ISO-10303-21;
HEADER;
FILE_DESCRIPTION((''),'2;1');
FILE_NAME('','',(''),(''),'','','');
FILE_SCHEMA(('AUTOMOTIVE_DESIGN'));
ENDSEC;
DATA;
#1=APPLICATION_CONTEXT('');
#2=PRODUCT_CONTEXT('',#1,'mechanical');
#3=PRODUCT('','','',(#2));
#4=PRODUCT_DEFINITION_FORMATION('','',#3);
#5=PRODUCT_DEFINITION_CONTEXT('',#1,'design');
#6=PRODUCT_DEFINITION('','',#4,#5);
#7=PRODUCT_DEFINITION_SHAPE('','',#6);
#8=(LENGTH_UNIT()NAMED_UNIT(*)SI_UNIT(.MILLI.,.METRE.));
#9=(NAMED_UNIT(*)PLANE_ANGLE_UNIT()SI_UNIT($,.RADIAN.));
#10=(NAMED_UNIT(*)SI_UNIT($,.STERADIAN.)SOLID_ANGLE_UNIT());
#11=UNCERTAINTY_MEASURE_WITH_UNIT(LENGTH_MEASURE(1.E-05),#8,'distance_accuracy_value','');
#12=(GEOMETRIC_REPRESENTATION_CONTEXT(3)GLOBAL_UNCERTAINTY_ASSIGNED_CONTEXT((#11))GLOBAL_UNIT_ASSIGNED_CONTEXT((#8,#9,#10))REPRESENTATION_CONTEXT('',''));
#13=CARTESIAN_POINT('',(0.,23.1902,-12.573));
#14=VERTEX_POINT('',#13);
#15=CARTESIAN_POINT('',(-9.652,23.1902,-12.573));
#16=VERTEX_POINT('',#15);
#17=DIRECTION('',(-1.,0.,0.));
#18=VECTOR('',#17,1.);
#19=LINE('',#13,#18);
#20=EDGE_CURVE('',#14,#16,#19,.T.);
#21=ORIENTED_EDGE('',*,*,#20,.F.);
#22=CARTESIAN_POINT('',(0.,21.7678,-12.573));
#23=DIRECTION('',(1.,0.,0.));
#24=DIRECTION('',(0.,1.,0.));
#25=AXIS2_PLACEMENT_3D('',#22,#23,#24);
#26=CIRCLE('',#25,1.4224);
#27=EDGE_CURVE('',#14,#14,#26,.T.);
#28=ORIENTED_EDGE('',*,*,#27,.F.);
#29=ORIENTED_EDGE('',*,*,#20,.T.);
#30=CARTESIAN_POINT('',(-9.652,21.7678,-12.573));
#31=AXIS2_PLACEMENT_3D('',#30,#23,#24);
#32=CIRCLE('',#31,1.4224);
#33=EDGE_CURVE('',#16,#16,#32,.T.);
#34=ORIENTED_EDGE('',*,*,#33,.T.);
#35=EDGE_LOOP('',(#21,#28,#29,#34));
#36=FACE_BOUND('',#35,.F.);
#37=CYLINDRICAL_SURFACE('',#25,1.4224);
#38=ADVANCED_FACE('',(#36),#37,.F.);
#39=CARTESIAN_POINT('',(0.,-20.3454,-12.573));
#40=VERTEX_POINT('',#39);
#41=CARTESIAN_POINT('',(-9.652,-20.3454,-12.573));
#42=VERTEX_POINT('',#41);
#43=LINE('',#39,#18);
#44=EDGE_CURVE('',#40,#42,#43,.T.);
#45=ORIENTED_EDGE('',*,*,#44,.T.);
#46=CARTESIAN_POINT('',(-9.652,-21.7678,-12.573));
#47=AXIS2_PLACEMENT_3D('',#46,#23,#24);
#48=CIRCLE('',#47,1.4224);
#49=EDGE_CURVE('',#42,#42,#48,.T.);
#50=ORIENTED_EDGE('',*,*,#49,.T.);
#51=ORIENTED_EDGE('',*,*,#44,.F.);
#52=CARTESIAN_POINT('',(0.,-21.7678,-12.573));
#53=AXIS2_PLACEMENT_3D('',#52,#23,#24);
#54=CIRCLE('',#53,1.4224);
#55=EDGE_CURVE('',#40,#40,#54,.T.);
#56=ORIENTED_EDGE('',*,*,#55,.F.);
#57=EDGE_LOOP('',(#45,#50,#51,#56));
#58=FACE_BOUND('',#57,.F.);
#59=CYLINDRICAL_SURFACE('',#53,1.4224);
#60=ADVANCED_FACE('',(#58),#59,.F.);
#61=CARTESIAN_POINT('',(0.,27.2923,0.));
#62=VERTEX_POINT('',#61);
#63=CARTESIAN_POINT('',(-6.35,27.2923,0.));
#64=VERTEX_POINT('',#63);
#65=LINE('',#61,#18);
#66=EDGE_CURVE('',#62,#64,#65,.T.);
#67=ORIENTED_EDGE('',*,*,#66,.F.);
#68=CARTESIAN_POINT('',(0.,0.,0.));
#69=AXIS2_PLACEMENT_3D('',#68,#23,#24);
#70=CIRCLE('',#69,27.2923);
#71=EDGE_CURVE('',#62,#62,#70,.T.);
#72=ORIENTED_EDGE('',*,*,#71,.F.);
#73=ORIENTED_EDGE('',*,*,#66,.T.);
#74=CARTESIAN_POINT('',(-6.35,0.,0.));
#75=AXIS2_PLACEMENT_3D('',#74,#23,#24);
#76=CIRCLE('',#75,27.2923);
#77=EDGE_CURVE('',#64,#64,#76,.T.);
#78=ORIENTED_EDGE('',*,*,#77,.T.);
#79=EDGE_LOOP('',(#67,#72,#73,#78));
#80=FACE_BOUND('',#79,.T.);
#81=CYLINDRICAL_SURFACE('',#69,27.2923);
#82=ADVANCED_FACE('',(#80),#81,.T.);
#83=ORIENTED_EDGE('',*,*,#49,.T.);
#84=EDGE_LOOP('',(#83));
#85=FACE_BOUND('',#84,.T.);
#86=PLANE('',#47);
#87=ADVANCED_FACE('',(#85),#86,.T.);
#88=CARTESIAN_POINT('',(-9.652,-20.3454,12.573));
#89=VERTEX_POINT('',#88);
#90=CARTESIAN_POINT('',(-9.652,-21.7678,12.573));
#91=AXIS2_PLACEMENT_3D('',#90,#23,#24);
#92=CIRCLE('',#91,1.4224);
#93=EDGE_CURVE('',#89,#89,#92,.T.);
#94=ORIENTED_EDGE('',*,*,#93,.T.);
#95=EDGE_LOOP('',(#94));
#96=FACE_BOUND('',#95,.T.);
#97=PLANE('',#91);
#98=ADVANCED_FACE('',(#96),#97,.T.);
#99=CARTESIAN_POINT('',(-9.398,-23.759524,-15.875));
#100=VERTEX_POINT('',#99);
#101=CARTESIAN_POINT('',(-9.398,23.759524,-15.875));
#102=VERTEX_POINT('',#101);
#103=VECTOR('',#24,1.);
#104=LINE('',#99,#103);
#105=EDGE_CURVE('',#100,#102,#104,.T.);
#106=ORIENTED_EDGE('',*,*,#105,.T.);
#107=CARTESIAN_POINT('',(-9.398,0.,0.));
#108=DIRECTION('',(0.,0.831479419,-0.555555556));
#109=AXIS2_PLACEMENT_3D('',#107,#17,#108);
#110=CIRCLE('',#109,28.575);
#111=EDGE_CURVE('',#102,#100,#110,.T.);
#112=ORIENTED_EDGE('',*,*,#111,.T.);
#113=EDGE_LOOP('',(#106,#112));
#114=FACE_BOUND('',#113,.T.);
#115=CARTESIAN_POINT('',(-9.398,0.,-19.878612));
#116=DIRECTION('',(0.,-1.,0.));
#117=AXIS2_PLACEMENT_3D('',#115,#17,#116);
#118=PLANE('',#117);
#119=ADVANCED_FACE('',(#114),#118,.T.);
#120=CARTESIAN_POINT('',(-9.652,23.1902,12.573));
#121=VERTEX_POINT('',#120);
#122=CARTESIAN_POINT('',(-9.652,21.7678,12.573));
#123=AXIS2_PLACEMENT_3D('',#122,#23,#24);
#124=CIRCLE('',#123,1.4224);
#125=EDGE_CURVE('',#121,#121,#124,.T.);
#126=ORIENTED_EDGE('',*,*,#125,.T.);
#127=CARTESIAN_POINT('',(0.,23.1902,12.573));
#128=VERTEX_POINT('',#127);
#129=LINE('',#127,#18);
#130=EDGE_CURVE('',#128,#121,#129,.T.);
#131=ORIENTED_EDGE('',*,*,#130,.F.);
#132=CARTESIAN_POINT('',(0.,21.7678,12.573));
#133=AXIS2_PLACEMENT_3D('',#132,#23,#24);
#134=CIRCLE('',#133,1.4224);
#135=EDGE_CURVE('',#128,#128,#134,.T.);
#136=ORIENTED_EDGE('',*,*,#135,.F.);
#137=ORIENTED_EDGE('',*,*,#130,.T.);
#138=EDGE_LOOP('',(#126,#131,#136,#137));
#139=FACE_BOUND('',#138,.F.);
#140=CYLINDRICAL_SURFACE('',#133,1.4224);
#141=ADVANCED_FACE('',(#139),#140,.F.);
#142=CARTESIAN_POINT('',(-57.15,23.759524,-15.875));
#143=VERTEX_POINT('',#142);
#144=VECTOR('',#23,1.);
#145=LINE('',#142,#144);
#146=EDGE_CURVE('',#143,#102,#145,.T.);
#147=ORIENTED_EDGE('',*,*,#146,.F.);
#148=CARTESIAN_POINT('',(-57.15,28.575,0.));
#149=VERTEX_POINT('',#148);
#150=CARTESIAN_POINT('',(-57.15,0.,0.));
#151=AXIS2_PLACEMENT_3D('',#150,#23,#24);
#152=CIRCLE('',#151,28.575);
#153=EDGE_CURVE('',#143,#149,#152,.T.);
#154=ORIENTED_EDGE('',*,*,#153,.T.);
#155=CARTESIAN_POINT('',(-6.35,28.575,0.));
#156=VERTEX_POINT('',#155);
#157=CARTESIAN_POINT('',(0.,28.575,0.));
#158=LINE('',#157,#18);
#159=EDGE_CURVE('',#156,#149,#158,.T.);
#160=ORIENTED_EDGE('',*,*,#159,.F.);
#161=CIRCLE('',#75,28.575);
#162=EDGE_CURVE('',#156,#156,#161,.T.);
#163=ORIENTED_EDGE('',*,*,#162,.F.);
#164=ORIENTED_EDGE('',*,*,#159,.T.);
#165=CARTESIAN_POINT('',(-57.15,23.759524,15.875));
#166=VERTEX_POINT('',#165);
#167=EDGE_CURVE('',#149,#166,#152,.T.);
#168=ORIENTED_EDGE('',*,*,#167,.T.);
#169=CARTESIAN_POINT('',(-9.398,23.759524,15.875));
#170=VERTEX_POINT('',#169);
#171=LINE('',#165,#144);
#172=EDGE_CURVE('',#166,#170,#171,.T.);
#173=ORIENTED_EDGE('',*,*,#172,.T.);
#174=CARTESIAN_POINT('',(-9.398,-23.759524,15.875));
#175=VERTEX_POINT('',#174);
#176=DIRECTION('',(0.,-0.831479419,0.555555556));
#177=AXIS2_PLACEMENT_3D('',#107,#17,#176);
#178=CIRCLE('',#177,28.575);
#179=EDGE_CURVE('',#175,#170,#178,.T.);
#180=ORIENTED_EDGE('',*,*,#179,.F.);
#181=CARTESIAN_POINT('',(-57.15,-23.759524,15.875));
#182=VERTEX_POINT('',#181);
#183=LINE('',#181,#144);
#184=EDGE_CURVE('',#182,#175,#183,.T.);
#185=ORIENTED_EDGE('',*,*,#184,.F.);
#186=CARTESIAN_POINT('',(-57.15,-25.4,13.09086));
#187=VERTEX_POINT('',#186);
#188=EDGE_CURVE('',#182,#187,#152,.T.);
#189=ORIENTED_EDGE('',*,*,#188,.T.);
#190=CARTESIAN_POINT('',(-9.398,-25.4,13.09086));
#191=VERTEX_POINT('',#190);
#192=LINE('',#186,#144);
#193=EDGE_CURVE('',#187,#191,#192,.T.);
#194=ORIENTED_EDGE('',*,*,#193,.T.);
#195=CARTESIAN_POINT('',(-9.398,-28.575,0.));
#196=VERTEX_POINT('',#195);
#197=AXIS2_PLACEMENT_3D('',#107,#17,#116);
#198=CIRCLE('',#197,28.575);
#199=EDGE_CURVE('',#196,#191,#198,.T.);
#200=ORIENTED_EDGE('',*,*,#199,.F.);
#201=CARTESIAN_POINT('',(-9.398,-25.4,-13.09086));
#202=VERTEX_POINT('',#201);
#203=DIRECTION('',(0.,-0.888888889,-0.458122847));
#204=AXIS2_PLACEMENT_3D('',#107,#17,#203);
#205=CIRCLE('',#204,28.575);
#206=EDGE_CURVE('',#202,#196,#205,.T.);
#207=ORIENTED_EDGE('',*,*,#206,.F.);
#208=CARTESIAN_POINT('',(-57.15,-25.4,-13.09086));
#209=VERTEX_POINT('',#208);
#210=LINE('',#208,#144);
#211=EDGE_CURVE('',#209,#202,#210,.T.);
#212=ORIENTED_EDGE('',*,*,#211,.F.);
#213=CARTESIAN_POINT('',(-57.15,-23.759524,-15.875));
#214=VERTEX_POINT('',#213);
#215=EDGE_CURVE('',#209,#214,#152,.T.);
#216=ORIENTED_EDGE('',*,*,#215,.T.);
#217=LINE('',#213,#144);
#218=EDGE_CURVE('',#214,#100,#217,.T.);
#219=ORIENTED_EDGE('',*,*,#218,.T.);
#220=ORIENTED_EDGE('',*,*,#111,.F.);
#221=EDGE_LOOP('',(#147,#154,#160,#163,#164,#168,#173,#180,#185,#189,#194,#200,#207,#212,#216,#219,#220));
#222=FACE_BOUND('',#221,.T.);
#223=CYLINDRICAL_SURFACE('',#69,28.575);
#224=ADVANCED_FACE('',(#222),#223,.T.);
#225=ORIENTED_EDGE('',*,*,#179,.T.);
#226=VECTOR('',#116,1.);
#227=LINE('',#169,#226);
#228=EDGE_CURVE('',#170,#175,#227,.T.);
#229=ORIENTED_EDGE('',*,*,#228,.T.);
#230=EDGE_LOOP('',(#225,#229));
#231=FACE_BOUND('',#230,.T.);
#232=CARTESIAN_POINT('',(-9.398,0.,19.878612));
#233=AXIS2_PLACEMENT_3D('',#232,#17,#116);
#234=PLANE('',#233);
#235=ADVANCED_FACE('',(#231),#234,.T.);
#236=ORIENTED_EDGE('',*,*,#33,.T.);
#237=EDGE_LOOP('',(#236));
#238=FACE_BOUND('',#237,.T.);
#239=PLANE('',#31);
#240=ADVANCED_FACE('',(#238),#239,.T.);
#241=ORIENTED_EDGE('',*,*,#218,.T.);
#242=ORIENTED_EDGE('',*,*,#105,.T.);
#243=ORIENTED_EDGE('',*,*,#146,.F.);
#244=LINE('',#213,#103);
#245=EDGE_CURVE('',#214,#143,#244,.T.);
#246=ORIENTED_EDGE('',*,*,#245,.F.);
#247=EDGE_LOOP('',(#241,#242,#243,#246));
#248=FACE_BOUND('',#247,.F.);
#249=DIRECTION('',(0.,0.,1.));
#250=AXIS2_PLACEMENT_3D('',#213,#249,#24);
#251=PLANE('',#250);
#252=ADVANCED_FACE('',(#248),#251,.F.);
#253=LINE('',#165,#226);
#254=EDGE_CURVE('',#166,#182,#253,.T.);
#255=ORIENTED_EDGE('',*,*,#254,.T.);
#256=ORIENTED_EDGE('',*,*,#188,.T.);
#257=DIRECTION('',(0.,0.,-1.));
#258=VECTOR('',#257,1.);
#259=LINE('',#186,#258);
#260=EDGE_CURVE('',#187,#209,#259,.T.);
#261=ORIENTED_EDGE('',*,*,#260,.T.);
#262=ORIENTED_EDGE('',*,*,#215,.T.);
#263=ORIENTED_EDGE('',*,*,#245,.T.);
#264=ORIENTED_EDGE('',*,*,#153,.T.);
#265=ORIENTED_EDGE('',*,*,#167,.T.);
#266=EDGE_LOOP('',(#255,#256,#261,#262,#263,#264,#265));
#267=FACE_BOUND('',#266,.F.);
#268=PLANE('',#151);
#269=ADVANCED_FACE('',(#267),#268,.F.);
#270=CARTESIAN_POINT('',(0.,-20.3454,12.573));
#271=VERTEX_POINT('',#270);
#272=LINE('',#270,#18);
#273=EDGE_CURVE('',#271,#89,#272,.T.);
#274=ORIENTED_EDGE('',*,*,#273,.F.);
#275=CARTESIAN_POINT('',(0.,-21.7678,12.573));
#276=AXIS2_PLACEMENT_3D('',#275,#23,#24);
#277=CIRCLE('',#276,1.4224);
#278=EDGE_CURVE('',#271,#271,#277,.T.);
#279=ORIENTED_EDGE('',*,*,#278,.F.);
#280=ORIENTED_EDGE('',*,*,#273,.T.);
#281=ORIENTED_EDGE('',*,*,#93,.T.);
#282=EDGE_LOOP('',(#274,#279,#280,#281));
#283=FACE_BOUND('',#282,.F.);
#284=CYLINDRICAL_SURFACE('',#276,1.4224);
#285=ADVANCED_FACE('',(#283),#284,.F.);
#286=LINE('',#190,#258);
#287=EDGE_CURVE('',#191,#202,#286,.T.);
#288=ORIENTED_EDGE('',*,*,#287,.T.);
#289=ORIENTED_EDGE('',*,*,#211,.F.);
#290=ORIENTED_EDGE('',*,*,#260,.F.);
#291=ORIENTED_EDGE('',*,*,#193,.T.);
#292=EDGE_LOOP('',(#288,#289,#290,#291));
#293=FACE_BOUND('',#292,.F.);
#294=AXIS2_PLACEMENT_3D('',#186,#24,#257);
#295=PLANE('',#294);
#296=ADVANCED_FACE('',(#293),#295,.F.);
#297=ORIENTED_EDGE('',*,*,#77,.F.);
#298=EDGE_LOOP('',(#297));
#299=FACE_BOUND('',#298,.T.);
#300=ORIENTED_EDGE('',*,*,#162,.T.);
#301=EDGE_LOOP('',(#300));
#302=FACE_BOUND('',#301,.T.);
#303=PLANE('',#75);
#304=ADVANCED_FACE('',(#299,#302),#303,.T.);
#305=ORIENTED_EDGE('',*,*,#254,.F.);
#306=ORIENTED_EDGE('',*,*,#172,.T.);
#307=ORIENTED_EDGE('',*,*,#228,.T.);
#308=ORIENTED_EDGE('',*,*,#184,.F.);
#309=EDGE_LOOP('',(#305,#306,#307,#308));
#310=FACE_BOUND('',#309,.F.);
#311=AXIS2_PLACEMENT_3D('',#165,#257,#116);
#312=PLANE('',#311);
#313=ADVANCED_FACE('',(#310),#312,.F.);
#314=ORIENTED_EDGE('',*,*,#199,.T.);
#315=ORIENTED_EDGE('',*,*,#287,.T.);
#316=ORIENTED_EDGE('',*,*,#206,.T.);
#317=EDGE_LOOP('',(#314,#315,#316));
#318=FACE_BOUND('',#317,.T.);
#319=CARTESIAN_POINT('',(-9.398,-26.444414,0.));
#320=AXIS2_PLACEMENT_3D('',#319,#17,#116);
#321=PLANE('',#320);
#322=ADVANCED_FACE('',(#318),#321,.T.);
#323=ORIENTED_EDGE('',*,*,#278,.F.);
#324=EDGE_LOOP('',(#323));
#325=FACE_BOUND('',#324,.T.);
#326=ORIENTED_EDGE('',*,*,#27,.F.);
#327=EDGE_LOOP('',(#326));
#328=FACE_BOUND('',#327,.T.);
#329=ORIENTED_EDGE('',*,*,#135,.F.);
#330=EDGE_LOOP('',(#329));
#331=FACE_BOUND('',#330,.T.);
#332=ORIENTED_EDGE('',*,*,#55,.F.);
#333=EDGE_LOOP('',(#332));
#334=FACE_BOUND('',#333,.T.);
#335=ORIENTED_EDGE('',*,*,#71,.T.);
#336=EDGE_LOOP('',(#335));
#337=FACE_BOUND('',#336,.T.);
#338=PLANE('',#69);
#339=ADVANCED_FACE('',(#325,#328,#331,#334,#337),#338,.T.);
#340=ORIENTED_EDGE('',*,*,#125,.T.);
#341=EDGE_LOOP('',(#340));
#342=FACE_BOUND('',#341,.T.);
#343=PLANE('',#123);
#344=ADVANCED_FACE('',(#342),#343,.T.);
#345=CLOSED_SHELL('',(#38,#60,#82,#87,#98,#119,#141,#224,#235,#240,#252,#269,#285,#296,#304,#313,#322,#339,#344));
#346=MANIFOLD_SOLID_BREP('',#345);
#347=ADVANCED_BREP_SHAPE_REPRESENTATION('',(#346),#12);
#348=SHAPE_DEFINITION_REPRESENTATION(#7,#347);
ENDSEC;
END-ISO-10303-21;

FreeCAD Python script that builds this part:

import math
import FreeCAD as App
import Part
import Sketcher

V = App.Vector
Q = App.Units.Quantity

doc = App.newDocument("Part")
body = doc.addObject("PartDesign::Body", "Body")

# Sketch on YZ plane
sketch1 = body.newObject("Sketcher::SketchObject", "Sketch")
sketch1.AttachmentSupport = (doc.getObject("YZ_Plane"), [""])
sketch1.MapMode = "FlatFace"
sketch1.addGeometry(Part.Circle(V(0, 0, 0), V(0, 0, 1), 29), False)
sketch1.addConstraint([
    Sketcher.Constraint("Coincident", 0, 3, -1, 1),
    Sketcher.Constraint("Diameter", 0, Q("2.25 in")),
])
pad1 = body.newObject("PartDesign::Pad", "Pad")
pad1.Profile = sketch1
pad1.Length = Q("2.25 in")
pad1.Reversed = True

# Sketch on YZ plane
sketch2 = body.newObject("Sketcher::SketchObject", "Sketch001")
sketch2.AttachmentSupport = (doc.getObject("YZ_Plane"), [""])
sketch2.MapMode = "FlatFace"
sketch2.addGeometry([
    Part.Circle(V(0, 0, 0), V(0, 0, 1), 29),
    Part.Circle(V(0, 0, 0), V(0, 0, 1), 27),
], False)
sketch2.addConstraint([
    Sketcher.Constraint("Coincident", 0, 3, -1, 1),
    Sketcher.Constraint("Coincident", 1, 3, -1, 1),
    Sketcher.Constraint("Diameter", 0, Q("2.25 in")),
    Sketcher.Constraint("Diameter", 1, Q("2.149 in")),
])
pocket1 = body.newObject("PartDesign::Pocket", "Pocket")
pocket1.Profile = sketch2
pocket1.Length = Q("0.25 in")

# Sketch on YZ plane
sketch3 = body.newObject("Sketcher::SketchObject", "Sketch002")
sketch3.AttachmentSupport = (doc.getObject("YZ_Plane"), [""])
sketch3.MapMode = "FlatFace"
sketch3.AttachmentOffset = App.Placement(V(0, 0, -2.25 * 25.4), App.Rotation())
sketch3.addGeometry([
    Part.ArcOfCircle(Part.Circle(V(0, 0, 0), V(0, 0, 1), 29), math.radians(-146), math.radians(-34)),  # 0
    Part.LineSegment(V(-24, -16, 0), V(24, -16, 0)),  # 1
    Part.LineSegment(V(-25, 13, 0), V(-25, -13, 0)),  # 2
    Part.ArcOfCircle(Part.Circle(V(0, 0, 0), V(0, 0, 1), 29), math.radians(180), math.radians(207)),  # 3
    Part.ArcOfCircle(Part.Circle(V(0, 0, 0), V(0, 0, 1), 29), math.radians(153), math.radians(180)),  # 4
    Part.LineSegment(V(24, 16, 0), V(-24, 16, 0)),  # 5
    Part.ArcOfCircle(Part.Circle(V(0, 0, 0), V(0, 0, 1), 29), math.radians(34), math.radians(146)),  # 6
], False)
sketch3.addConstraint([
    Sketcher.Constraint("Coincident", 0, 1, 1, 1),
    Sketcher.Constraint("Coincident", 1, 2, 0, 2),
    Sketcher.Constraint("Coincident", 2, 2, 3, 2),
    Sketcher.Constraint("Tangent", 3, 1, 4, 2),
    Sketcher.Constraint("Coincident", 4, 1, 2, 1),
    Sketcher.Constraint("Coincident", 5, 1, 6, 1),
    Sketcher.Constraint("Coincident", 6, 2, 5, 2),
    Sketcher.Constraint("Horizontal", 1),
    Sketcher.Constraint("Vertical", 2),
    Sketcher.Constraint("Horizontal", 5),
    Sketcher.Constraint("Coincident", 0, 3, -1, 1),
    Sketcher.Constraint("Coincident", 3, 3, -1, 1),
    Sketcher.Constraint("Coincident", 6, 3, -1, 1),
    Sketcher.Constraint("Equal", 0, 3),
    Sketcher.Constraint("Equal", 3, 4),
    Sketcher.Constraint("Equal", 4, 6),
    Sketcher.Constraint("PointOnObject", 3, 1, -1),
    Sketcher.Constraint("Vertical", 1, 2, 5, 1),
    Sketcher.Constraint("DistanceX", 2, 2, -1, 1, Q("1 in")),
    Sketcher.Constraint("Radius", 0, Q("1.125 in")),
    Sketcher.Constraint("DistanceY", 1, 2, 5, 1, Q("1.25 in")),
])
pocket2 = body.newObject("PartDesign::Pocket", "Pocket001")
pocket2.Profile = sketch3
pocket2.Length = Q("1.88 in")
pocket2.Reversed = True

# Sketch on YZ plane
sketch4 = body.newObject("Sketcher::SketchObject", "Sketch003")
sketch4.AttachmentSupport = (doc.getObject("YZ_Plane"), [""])
sketch4.MapMode = "FlatFace"
sketch4.addGeometry([
    Part.Circle(V(-21.8, 12.6, 0), V(0, 0, 1), 1.4),
    Part.Circle(V(21.8, 12.6, 0), V(0, 0, 1), 1.4),
    Part.Circle(V(21.8, -12.6, 0), V(0, 0, 1), 1.4),
    Part.Circle(V(-21.8, -12.6, 0), V(0, 0, 1), 1.4),
], False)
sketch4.addConstraint([
    Sketcher.Constraint("Equal", 0, 1),
    Sketcher.Constraint("Equal", 1, 2),
    Sketcher.Constraint("Equal", 2, 3),
    Sketcher.Constraint("Symmetric", 0, 3, 2, 3, -1, 1),
    Sketcher.Constraint("Symmetric", 1, 3, 3, 3, -1, 1),
    Sketcher.Constraint("Symmetric", 0, 3, 1, 3, -2),
    Sketcher.Constraint("Diameter", 0, Q("0.112 in")),
    Sketcher.Constraint("DistanceY", 2, 3, 1, 3, Q("0.99 in")),
    Sketcher.Constraint("DistanceX", 0, 3, -1, 1, Q("0.857 in")),
])
pocket3 = body.newObject("PartDesign::Pocket", "Pocket002")
pocket3.Profile = sketch4
pocket3.Length = Q("0.38 in")

doc.recompute()
